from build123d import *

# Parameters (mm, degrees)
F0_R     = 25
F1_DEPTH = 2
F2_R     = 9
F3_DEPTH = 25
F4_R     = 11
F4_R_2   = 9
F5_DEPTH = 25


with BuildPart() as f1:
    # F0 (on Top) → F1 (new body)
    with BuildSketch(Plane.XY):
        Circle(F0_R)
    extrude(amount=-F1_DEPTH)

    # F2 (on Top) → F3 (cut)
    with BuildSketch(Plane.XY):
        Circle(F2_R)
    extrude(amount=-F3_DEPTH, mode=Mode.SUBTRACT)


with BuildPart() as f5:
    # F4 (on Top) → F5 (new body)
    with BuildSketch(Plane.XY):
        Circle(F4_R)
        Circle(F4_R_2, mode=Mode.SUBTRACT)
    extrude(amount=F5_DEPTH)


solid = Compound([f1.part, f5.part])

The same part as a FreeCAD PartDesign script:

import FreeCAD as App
import Part
import Sketcher
from FreeCAD import Vector

doc = App.newDocument("Part")
body = doc.addObject("PartDesign::Body", "Body")

# Sketch on XY plane
sketch1 = body.newObject("Sketcher::SketchObject", "Sketch")
sketch1.AttachmentSupport = (doc.getObject("XY_Plane"), [""])
sketch1.MapMode = "FlatFace"
sketch1.addGeometry(Part.Circle(Vector(0, 0, 0), Vector(0, 0, 1), 25), False)
sketch1.addConstraint([
    Sketcher.Constraint("Coincident", 0, 3, -1, 1),
    Sketcher.Constraint("Diameter", 0, 50.0),
])
pad1 = body.newObject("PartDesign::Pad", "Pad")
pad1.Profile = sketch1
pad1.Length = 2
pad1.Reversed = True

# Sketch on XY plane
sketch2 = body.newObject("Sketcher::SketchObject", "Sketch001")
sketch2.AttachmentSupport = (doc.getObject("XY_Plane"), [""])
sketch2.MapMode = "FlatFace"
sketch2.addGeometry(Part.Circle(Vector(0, 0, 0), Vector(0, 0, 1), 9), False)
sketch2.addConstraint([
    Sketcher.Constraint("Coincident", 0, 3, -1, 1),
    Sketcher.Constraint("Diameter", 0, 18.0),
])
pocket1 = body.newObject("PartDesign::Pocket", "Pocket")
pocket1.Profile = sketch2
pocket1.Length = 25
body2 = doc.addObject("PartDesign::Body", "Body001")

# Sketch on XY plane
sketch3 = body2.newObject("Sketcher::SketchObject", "Sketch002")
sketch3.AttachmentSupport = (doc.getObject("XY_Plane001"), [""])
sketch3.MapMode = "FlatFace"
sketch3.addGeometry([
    Part.Circle(Vector(0, 0, 0), Vector(0, 0, 1), 11),
    Part.Circle(Vector(0, 0, 0), Vector(0, 0, 1), 9),
], False)
sketch3.addConstraint([
    Sketcher.Constraint("Coincident", 0, 3, -1, 1),
    Sketcher.Constraint("Coincident", 1, 3, -1, 1),
    Sketcher.Constraint("Diameter", 0, 22.0),
    Sketcher.Constraint("Diameter", 1, 18.0),
])
pad2 = body2.newObject("PartDesign::Pad", "Pad001")
pad2.Profile = sketch3
pad2.Length = 25

doc.recompute()
